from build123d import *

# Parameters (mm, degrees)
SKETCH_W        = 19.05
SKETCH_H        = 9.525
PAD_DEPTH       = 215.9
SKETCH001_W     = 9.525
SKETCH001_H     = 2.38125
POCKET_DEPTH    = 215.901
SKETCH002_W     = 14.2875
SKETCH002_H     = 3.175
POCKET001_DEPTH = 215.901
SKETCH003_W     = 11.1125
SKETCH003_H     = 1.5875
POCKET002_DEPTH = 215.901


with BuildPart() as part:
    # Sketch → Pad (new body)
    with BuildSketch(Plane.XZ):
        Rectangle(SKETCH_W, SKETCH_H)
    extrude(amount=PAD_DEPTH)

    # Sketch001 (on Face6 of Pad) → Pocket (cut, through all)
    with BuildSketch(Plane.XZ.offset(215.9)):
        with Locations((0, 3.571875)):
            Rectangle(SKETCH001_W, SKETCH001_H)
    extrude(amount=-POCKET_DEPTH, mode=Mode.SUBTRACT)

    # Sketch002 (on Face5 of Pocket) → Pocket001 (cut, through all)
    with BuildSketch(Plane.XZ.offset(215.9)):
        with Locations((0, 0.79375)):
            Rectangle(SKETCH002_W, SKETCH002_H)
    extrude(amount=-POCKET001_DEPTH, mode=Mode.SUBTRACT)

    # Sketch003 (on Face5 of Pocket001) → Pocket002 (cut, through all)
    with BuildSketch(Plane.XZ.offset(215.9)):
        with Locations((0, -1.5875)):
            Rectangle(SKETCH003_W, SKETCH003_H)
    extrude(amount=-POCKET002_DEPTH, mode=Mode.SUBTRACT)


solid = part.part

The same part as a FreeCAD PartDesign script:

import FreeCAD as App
import Part
import Sketcher
from FreeCAD import Vector
Q = App.Units.Quantity

doc = App.newDocument("Part")
body = doc.addObject("PartDesign::Body", "Body")

# Sketch on XZ plane
sketch1 = body.newObject("Sketcher::SketchObject", "Sketch")
sketch1.AttachmentSupport = (doc.getObject("XZ_Plane"), [""])
sketch1.MapMode = "FlatFace"
sketch1.addGeometry(Part.LineSegment(Vector(-10, 5, 0), Vector(-10, -5, 0)), False)
sketch1.addGeometry(Part.LineSegment(Vector(-10, -5, 0), Vector(10, -5, 0)), False)
sketch1.addGeometry(Part.LineSegment(Vector(10, -5, 0), Vector(10, 5, 0)), False)
sketch1.addGeometry(Part.LineSegment(Vector(10, 5, 0), Vector(-10, 5, 0)), False)
sketch1.addConstraint(Sketcher.Constraint("Coincident", 0, 2, 1, 1))
sketch1.addConstraint(Sketcher.Constraint("Coincident", 1, 2, 2, 1))
sketch1.addConstraint(Sketcher.Constraint("Coincident", 2, 2, 3, 1))
sketch1.addConstraint(Sketcher.Constraint("Coincident", 3, 2, 0, 1))
sketch1.addConstraint(Sketcher.Constraint("Vertical", 0))
sketch1.addConstraint(Sketcher.Constraint("Horizontal", 1))
sketch1.addConstraint(Sketcher.Constraint("Vertical", 2))
sketch1.addConstraint(Sketcher.Constraint("Horizontal", 3))
sketch1.addConstraint(Sketcher.Constraint("Symmetric", 0, 2, 2, 2, -1, 1))
sketch1.addConstraint(Sketcher.Constraint("DistanceX", 1, 1, 1, 2, Q("0.75 in")))
sketch1.addConstraint(Sketcher.Constraint("DistanceY", 0, 2, 0, 1, Q("0.375 in")))
pad1 = body.newObject("PartDesign::Pad", "Pad")
pad1.Profile = sketch1
pad1.Length = Q("8.5 in")

# Sketch on XZ plane
sketch2 = body.newObject("Sketcher::SketchObject", "Sketch001")
sketch2.AttachmentSupport = (doc.getObject("XZ_Plane"), [""])
sketch2.MapMode = "FlatFace"
sketch2.AttachmentOffset = App.Placement(Vector(0, 0, 8.5 * 25.4), App.Rotation())
sketch2.addGeometry(Part.LineSegment(Vector(-4.8, 4.8, 0), Vector(-4.8, 2.4, 0)), False)
sketch2.addGeometry(Part.LineSegment(Vector(-4.8, 2.4, 0), Vector(4.8, 2.4, 0)), False)
sketch2.addGeometry(Part.LineSegment(Vector(4.8, 2.4, 0), Vector(4.8, 4.8, 0)), False)
sketch2.addGeometry(Part.LineSegment(Vector(4.8, 4.8, 0), Vector(-4.8, 4.8, 0)), False)
sketch2.addConstraint(Sketcher.Constraint("Coincident", 0, 2, 1, 1))
sketch2.addConstraint(Sketcher.Constraint("Coincident", 1, 2, 2, 1))
sketch2.addConstraint(Sketcher.Constraint("Coincident", 2, 2, 3, 1))
sketch2.addConstraint(Sketcher.Constraint("Coincident", 3, 2, 0, 1))
sketch2.addConstraint(Sketcher.Constraint("Vertical", 0))
sketch2.addConstraint(Sketcher.Constraint("Horizontal", 1))
sketch2.addConstraint(Sketcher.Constraint("Vertical", 2))
sketch2.addConstraint(Sketcher.Constraint("Horizontal", 3))
sketch2.addConstraint(Sketcher.Constraint("DistanceX", 1, 1, 1, 2, Q("0.375 in")))
sketch2.addConstraint(Sketcher.Constraint("DistanceY", 0, 2, 0, 1, Q("0.09375 in")))
sketch2.addConstraint(Sketcher.Constraint("DistanceX", 0, 2, -1, 1, Q("0.1875 in")))
sketch2.addConstraint(Sketcher.Constraint("DistanceY", -1, 1, 0, 2, Q("0.09375 in")))
pocket1 = body.newObject("PartDesign::Pocket", "Pocket")
pocket1.Profile = sketch2
pocket1.Type = "ThroughAll"

# Sketch on XZ plane
sketch3 = body.newObject("Sketcher::SketchObject", "Sketch002")
sketch3.AttachmentSupport = (doc.getObject("XZ_Plane"), [""])
sketch3.MapMode = "FlatFace"
sketch3.AttachmentOffset = App.Placement(Vector(0, 0, 8.5 * 25.4), App.Rotation())
sketch3.addGeometry(Part.LineSegment(Vector(-7.1, 2.4, 0), Vector(-7.1, -0.8, 0)), False)
sketch3.addGeometry(Part.LineSegment(Vector(-7.1, -0.8, 0), Vector(7.1, -0.8, 0)), False)
sketch3.addGeometry(Part.LineSegment(Vector(7.1, -0.8, 0), Vector(7.1, 2.4, 0)), False)
sketch3.addGeometry(Part.LineSegment(Vector(7.1, 2.4, 0), Vector(-7.1, 2.4, 0)), False)
sketch3.addConstraint(Sketcher.Constraint("Coincident", 0, 2, 1, 1))
sketch3.addConstraint(Sketcher.Constraint("Coincident", 1, 2, 2, 1))
sketch3.addConstraint(Sketcher.Constraint("Coincident", 2, 2, 3, 1))
sketch3.addConstraint(Sketcher.Constraint("Coincident", 3, 2, 0, 1))
sketch3.addConstraint(Sketcher.Constraint("Vertical", 0))
sketch3.addConstraint(Sketcher.Constraint("Horizontal", 1))
sketch3.addConstraint(Sketcher.Constraint("Vertical", 2))
sketch3.addConstraint(Sketcher.Constraint("Horizontal", 3))
sketch3.addConstraint(Sketcher.Constraint("DistanceX", 1, 1, 1, 2, Q("0.5625 in")))
sketch3.addConstraint(Sketcher.Constraint("DistanceY", 0, 2, 0, 1, Q("0.125 in")))
sketch3.addConstraint(Sketcher.Constraint("DistanceX", 0, 2, -1, 1, Q("0.28125 in")))
sketch3.addConstraint(Sketcher.Constraint("DistanceY", 0, 2, -1, 1, Q("0.03125 in")))
pocket2 = body.newObject("PartDesign::Pocket", "Pocket001")
pocket2.Profile = sketch3
pocket2.Type = "ThroughAll"

# Sketch on XZ plane
sketch4 = body.newObject("Sketcher::SketchObject", "Sketch003")
sketch4.AttachmentSupport = (doc.getObject("XZ_Plane"), [""])
sketch4.MapMode = "FlatFace"
sketch4.AttachmentOffset = App.Placement(Vector(0, 0, 8.5 * 25.4), App.Rotation())
sketch4.addGeometry(Part.LineSegment(Vector(-5.6, -0.8, 0), Vector(-5.6, -2.4, 0)), False)
sketch4.addGeometry(Part.LineSegment(Vector(-5.6, -2.4, 0), Vector(5.6, -2.4, 0)), False)
sketch4.addGeometry(Part.LineSegment(Vector(5.6, -2.4, 0), Vector(5.6, -0.8, 0)), False)
sketch4.addGeometry(Part.LineSegment(Vector(5.6, -0.8, 0), Vector(-5.6, -0.8, 0)), False)
sketch4.addConstraint(Sketcher.Constraint("Coincident", 0, 2, 1, 1))
sketch4.addConstraint(Sketcher.Constraint("Coincident", 1, 2, 2, 1))
sketch4.addConstraint(Sketcher.Constraint("Coincident", 2, 2, 3, 1))
sketch4.addConstraint(Sketcher.Constraint("Coincident", 3, 2, 0, 1))
sketch4.addConstraint(Sketcher.Constraint("Vertical", 0))
sketch4.addConstraint(Sketcher.Constraint("Horizontal", 1))
sketch4.addConstraint(Sketcher.Constraint("Vertical", 2))
sketch4.addConstraint(Sketcher.Constraint("Horizontal", 3))
sketch4.addConstraint(Sketcher.Constraint("DistanceX", 1, 1, 1, 2, Q("0.4375 in")))
sketch4.addConstraint(Sketcher.Constraint("DistanceY", 0, 2, 0, 1, Q("0.0625 in")))
sketch4.addConstraint(Sketcher.Constraint("DistanceX", 0, 2, -1, 1, Q("0.21875 in")))
sketch4.addConstraint(Sketcher.Constraint("DistanceY", 0, 2, -1, 1, Q("0.09375 in")))
pocket3 = body.newObject("PartDesign::Pocket", "Pocket002")
pocket3.Profile = sketch4
pocket3.Type = "ThroughAll"

doc.recompute()
